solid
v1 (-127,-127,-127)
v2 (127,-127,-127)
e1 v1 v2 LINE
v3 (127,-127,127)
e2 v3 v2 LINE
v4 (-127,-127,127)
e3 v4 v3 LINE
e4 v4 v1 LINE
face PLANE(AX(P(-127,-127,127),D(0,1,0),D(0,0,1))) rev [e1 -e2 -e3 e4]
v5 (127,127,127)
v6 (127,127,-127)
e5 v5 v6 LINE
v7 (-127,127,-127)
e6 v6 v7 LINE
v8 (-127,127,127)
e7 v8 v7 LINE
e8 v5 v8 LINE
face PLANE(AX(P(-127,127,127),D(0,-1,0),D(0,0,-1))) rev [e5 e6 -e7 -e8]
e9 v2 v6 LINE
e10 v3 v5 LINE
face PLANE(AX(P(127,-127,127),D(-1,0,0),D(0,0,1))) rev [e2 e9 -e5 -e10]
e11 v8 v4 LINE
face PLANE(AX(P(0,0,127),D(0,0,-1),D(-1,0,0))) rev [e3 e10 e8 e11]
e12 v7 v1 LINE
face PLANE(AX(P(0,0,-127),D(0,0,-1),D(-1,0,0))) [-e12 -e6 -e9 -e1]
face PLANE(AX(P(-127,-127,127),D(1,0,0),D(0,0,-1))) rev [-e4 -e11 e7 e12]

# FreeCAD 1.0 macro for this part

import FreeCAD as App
import Part
import Sketcher
Q = App.Units.Quantity


def add_polygon(sketch, points):
    """Adds a closed chain of lines whose ends are joined by coincident constraints."""
    first, n = sketch.GeometryCount, len(points)
    for a, b in zip(points, points[1:] + points[:1]):
        sketch.addGeometry(Part.LineSegment(App.Vector(*a, 0), App.Vector(*b, 0)), False)
    for i in range(n):
        sketch.addConstraint(Sketcher.Constraint("Coincident", first + i, 2, first + (i + 1) % n, 1))

doc = App.newDocument("Part")
body = doc.addObject("PartDesign::Body", "Body")

sketch1 = doc.addObject("Sketcher::SketchObject", "Sketch")
body.addObject(sketch1)
sketch1.AttachmentSupport = (doc.XY_Plane, [""])
sketch1.MapMode = "FlatFace"
add_polygon(sketch1, [(-127, 127), (-127, -127), (127, -127), (127, 127)])
sketch1.addConstraint([
    Sketcher.Constraint("Vertical", 0),
    Sketcher.Constraint("Horizontal", 1),
    Sketcher.Constraint("Vertical", 2),
    Sketcher.Constraint("Horizontal", 3),
    Sketcher.Constraint("Symmetric", 0, 2, 2, 2, -1, 1),
    Sketcher.Constraint("Equal", 3, 0),
    Sketcher.Constraint("DistanceX", 1, 1, 1, 2, Q("10 in")),
])
pad1 = doc.addObject("PartDesign::Pad", "Pad")
body.addObject(pad1)
pad1.Profile = sketch1
pad1.Length = Q("10 in")
pad1.Midplane = True

doc.recompute()
